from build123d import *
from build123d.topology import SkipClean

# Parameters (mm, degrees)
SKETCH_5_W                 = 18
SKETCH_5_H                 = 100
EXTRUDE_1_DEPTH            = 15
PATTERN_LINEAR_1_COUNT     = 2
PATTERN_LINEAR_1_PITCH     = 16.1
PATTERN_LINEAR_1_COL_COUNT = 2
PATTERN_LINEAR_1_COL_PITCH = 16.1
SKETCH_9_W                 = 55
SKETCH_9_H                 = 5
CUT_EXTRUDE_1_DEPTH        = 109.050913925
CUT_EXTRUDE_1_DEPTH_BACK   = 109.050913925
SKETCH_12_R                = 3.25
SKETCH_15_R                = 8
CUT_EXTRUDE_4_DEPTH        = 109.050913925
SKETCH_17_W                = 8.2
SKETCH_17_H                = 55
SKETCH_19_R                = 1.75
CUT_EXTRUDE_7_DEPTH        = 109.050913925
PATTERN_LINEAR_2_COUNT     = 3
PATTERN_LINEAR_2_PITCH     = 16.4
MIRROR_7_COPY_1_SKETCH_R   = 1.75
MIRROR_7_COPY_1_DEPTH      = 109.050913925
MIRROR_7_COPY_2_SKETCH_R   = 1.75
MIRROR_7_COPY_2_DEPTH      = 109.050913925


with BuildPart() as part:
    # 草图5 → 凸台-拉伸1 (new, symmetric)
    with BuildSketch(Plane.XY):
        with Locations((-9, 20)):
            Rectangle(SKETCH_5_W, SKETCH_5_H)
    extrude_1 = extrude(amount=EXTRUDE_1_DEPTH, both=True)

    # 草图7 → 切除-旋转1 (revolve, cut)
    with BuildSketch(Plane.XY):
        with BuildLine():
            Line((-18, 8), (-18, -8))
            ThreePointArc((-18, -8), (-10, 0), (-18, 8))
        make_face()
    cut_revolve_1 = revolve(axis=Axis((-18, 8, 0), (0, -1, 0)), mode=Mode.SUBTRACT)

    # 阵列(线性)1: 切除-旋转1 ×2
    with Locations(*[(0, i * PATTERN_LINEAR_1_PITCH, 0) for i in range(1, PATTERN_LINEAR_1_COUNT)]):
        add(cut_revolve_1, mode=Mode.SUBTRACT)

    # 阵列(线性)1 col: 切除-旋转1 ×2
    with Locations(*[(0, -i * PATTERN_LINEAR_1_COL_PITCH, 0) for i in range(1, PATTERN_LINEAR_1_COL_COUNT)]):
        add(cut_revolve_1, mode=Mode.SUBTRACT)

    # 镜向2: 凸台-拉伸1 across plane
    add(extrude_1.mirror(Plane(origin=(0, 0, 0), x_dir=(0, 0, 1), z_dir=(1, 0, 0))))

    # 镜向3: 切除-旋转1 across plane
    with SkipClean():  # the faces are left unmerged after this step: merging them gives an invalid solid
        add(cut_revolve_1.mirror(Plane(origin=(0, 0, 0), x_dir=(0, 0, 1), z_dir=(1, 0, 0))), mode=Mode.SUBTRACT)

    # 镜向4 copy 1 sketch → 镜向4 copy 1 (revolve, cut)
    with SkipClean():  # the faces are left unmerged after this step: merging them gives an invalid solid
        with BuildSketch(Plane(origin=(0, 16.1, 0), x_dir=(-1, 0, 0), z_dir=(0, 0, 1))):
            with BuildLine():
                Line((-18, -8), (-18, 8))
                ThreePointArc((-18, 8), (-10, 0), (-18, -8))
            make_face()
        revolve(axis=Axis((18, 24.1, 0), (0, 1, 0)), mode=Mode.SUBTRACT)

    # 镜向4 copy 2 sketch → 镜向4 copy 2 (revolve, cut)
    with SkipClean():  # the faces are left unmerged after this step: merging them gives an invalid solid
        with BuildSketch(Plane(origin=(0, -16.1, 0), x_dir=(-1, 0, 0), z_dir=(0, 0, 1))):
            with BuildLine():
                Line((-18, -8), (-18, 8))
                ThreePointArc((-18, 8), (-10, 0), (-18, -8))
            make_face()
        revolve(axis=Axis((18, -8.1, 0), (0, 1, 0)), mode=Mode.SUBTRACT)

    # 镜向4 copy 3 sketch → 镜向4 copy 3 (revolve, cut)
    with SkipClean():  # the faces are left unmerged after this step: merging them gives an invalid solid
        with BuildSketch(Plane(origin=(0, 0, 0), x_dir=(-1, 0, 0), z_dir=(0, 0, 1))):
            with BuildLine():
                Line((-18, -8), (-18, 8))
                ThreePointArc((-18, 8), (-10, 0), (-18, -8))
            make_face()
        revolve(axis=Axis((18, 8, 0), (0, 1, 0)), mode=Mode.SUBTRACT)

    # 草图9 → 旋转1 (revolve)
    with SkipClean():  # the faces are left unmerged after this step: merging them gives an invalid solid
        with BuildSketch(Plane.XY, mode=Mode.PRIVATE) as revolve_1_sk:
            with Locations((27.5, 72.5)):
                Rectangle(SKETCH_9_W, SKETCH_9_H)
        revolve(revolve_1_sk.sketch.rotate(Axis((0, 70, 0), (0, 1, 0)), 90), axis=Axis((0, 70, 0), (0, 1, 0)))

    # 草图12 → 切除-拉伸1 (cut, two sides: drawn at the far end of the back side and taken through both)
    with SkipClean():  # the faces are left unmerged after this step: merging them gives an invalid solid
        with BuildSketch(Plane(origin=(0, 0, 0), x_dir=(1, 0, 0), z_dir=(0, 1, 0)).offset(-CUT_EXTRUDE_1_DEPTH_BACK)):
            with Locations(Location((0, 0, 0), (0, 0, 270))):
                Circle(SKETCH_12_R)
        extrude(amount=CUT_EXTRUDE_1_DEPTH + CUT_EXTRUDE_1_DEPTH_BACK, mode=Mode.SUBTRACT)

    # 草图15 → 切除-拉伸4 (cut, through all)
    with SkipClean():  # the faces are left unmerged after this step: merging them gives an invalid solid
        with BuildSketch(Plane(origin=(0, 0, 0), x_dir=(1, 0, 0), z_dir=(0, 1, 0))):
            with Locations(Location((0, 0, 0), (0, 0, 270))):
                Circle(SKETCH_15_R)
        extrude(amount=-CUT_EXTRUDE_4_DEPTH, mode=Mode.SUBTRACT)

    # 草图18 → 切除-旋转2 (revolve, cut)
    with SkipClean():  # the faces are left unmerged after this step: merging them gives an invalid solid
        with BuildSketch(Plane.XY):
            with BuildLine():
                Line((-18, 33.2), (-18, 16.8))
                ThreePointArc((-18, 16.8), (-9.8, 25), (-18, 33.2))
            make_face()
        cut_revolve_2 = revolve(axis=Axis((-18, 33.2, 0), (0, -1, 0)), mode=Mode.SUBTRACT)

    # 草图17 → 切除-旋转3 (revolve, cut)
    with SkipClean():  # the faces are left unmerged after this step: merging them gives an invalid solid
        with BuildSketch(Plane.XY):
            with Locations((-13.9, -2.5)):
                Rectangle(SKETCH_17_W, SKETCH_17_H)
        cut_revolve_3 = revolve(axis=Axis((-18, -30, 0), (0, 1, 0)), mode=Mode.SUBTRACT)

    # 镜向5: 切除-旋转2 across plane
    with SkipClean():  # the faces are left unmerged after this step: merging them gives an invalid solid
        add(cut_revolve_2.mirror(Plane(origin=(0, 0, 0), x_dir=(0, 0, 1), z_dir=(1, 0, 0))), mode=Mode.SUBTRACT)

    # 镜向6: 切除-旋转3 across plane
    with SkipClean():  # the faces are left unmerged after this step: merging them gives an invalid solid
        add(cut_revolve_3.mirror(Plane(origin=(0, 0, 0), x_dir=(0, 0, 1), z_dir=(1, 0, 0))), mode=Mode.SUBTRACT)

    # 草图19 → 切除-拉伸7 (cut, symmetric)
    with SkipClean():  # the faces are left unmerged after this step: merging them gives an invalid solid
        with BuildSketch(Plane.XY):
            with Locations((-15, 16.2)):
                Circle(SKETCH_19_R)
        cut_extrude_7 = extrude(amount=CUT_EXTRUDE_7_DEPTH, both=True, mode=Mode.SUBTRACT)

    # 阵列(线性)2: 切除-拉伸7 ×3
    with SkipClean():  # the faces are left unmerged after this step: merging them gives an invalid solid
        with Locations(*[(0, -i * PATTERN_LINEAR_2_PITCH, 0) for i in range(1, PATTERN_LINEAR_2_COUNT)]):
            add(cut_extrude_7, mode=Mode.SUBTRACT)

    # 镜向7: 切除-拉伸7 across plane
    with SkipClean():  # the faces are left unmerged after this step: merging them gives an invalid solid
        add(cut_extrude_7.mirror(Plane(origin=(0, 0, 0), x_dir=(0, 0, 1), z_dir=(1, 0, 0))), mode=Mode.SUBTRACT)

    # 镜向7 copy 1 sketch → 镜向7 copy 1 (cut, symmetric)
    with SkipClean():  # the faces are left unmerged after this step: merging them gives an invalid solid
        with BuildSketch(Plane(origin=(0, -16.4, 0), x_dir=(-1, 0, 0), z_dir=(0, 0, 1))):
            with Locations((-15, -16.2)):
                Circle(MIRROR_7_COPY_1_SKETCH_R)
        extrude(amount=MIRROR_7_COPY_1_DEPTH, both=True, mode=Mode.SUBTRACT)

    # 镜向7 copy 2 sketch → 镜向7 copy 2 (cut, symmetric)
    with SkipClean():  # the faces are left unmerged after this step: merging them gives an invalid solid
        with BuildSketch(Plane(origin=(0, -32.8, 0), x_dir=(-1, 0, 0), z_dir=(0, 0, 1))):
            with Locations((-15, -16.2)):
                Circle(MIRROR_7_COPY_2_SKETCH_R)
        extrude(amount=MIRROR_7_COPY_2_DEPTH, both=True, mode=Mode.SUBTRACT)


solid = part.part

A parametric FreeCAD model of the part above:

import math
import FreeCAD as App
import Part
import Sketcher
Q = App.Units.Quantity


def add_polygon(sketch, points):
    """Adds a closed chain of lines whose ends are joined by coincident constraints."""
    first, n = sketch.GeometryCount, len(points)
    for a, b in zip(points, points[1:] + points[:1]):
        sketch.addGeometry(Part.LineSegment(App.Vector(*a, 0), App.Vector(*b, 0)), False)
    for i in range(n):
        sketch.addConstraint(Sketcher.Constraint("Coincident", first + i, 2, first + (i + 1) % n, 1))

doc = App.newDocument("Part")
params = doc.addObject("Spreadsheet::Sheet", "Params")
for row, (alias, value) in enumerate([
    ("sketch1_width", "18 mm"),
    ("sketch1_height", "100 mm"),
    ("pad1_length", "30 mm"),
    ("sketch2_radius", "8 mm"),
    ("groove_angle", "360 deg"),
    ("linearpattern_pitch", "16.1 mm"),
    ("linearpattern2_pitch", "16.1 mm"),
    ("sketch3_radius", "8 mm"),
    ("groove2_angle", "360 deg"),
    ("sketch4_radius", "8 mm"),
    ("groove3_angle", "360 deg"),
    ("sketch5_radius", "8 mm"),
    ("groove4_angle", "360 deg"),
    ("sketch6_width", "55 mm"),
    ("sketch6_height", "5 mm"),
    ("revolution_angle", "360 deg"),
    ("sketch7_diameter", "6.5 mm"),
    ("sketch8_diameter", "16 mm"),
    ("sketch9_radius", "8.2 mm"),
    ("groove5_angle", "360 deg"),
    ("sketch10_height", "55 mm"),
    ("sketch10_width", "8.2 mm"),
    ("groove6_angle", "360 deg"),
    ("sketch11_diameter", "3.5 mm"),
    ("pocket3_length", "218.101828 mm"),
    ("linearpattern3_pitch", "16.4 mm"),
    ("sketch12_diameter", "3.5 mm"),
    ("pocket4_length", "218.101828 mm"),
    ("sketch13_diameter", "3.5 mm"),
    ("pocket5_length", "218.101828 mm"),
], start=1):
    params.set(f"A{row}", alias)
    params.set(f"B{row}", "=" + value)
    params.setAlias(f"B{row}", alias)

body = doc.addObject("PartDesign::Body", "Body")

sketch1 = body.newObject("Sketcher::SketchObject", "Sketch")
sketch1.AttachmentSupport = (doc.getObject("XY_Plane"), [""])
sketch1.MapMode = "FlatFace"
add_polygon(sketch1, [(-18, 70), (-18, -30), (0, -30), (0, 70)])
sketch1.addConstraint([
    Sketcher.Constraint("Vertical", 0),
    Sketcher.Constraint("Horizontal", 1),
    Sketcher.Constraint("Vertical", 2),
    Sketcher.Constraint("Horizontal", 3),
    Sketcher.Constraint("PointOnObject", 1, 2, -2),
    Sketcher.Constraint("DistanceX", 1, 1, 1, 2, Q("18 mm")),
    Sketcher.Constraint("DistanceY", 0, 2, 0, 1, Q("100 mm")),
    Sketcher.Constraint("DistanceY", 0, 2, -1, 1, Q("30 mm")),
])
sketch1.setExpression("Constraints[9]", "Params.sketch1_width")
sketch1.setExpression("Constraints[10]", "Params.sketch1_height")
pad1 = body.newObject("PartDesign::Pad", "Pad")
pad1.Profile = sketch1
pad1.setExpression("Length", "Params.pad1_length")
pad1.Midplane = True

sketch2 = body.newObject("Sketcher::SketchObject", "Sketch001")
sketch2.AttachmentSupport = (doc.getObject("XY_Plane"), [""])
sketch2.MapMode = "FlatFace"
sketch2.addGeometry([
    Part.LineSegment(App.Vector(-18, 8, 0), App.Vector(-18, -8, 0)),
    Part.ArcOfCircle(Part.Circle(App.Vector(-18, 0, 0), App.Vector(0, 0, 1), 8), math.radians(-90), math.radians(90)),
], False)
sketch2.addGeometry(Part.LineSegment(App.Vector(-18, 8, 0), App.Vector(-18, -8, 0)), True)
sketch2.addConstraint([
    Sketcher.Constraint("Coincident", 0, 1, 1, 2),
    Sketcher.Constraint("Coincident", 1, 1, 0, 2),
    Sketcher.Constraint("Vertical", 0),
    Sketcher.Constraint("Vertical", 2),
    Sketcher.Constraint("Coincident", 2, 1, 0, 1),
    Sketcher.Constraint("PointOnObject", 1, 3, -1),
    Sketcher.Constraint("Vertical", 1, 3, 0, 1),
    Sketcher.Constraint("Equal", 0, 2),
    Sketcher.Constraint("Radius", 1, Q("8 mm")),
    Sketcher.Constraint("DistanceX", 1, 3, -1, 1, Q("18 mm")),
])
sketch2.setExpression("Constraints[8]", "Params.sketch2_radius")
groove = body.newObject("PartDesign::Groove", "Groove")
groove.Profile = sketch2
groove.ReferenceAxis = (sketch2, ["Axis0"])
groove.setExpression("Angle", "Params.groove_angle")
doc.recompute()

linearpattern = body.newObject("PartDesign::LinearPattern", "LinearPattern")
linearpattern.Originals = [groove]
linearpattern.Direction = (doc.getObject("Y_Axis"), [""])
linearpattern.Mode = "offset"
linearpattern.setExpression("Offset", "Params.linearpattern_pitch")
linearpattern.Occurrences = 2
body.Tip = linearpattern
doc.recompute()

linearpattern2 = body.newObject("PartDesign::LinearPattern", "LinearPattern001")
linearpattern2.Originals = [groove]
linearpattern2.Direction = (doc.getObject("Y_Axis"), [""])
linearpattern2.Mode = "offset"
linearpattern2.setExpression("Offset", "Params.linearpattern2_pitch")
linearpattern2.Occurrences = 2
linearpattern2.Reversed = True
body.Tip = linearpattern2
doc.recompute()

mirrored = body.newObject("PartDesign::Mirrored", "Mirrored")
mirrored.Originals = [pad1]
mirrored.MirrorPlane = (doc.getObject("YZ_Plane"), [""])
body.Tip = mirrored
doc.recompute()

mirrored2 = body.newObject("PartDesign::Mirrored", "Mirrored001")
mirrored2.Originals = [groove]
mirrored2.MirrorPlane = (doc.getObject("YZ_Plane"), [""])
body.Tip = mirrored2

sketch3 = body.newObject("Sketcher::SketchObject", "Sketch002")
sketch3.AttachmentSupport = (doc.getObject("XY_Plane"), [""])
sketch3.MapMode = "FlatFace"
sketch3.addGeometry([
    Part.LineSegment(App.Vector(18, 8.1, 0), App.Vector(18, 24.1, 0)),
    Part.ArcOfCircle(Part.Circle(App.Vector(18, 16.1, 0), App.Vector(0, 0, 1), 8), math.radians(90), math.radians(270)),
], False)
sketch3.addGeometry(Part.LineSegment(App.Vector(18, 8.1, 0), App.Vector(18, 24.1, 0)), True)
sketch3.addConstraint([
    Sketcher.Constraint("Coincident", 0, 1, 1, 2),
    Sketcher.Constraint("Coincident", 1, 1, 0, 2),
    Sketcher.Constraint("Vertical", 0),
    Sketcher.Constraint("Vertical", 2),
    Sketcher.Constraint("Coincident", 2, 1, 0, 1),
    Sketcher.Constraint("Vertical", 1, 3, 0, 1),
    Sketcher.Constraint("Equal", 0, 2),
    Sketcher.Constraint("Radius", 1, Q("8 mm")),
    Sketcher.Constraint("DistanceX", -1, 1, 1, 3, Q("18 mm")),
    Sketcher.Constraint("DistanceY", -1, 1, 1, 3, Q("16.1 mm")),
])
sketch3.setExpression("Constraints[7]", "Params.sketch3_radius")
groove2 = body.newObject("PartDesign::Groove", "Groove001")
groove2.Profile = sketch3
groove2.ReferenceAxis = (sketch3, ["Axis0"])
groove2.setExpression("Angle", "Params.groove2_angle")

sketch4 = body.newObject("Sketcher::SketchObject", "Sketch003")
sketch4.AttachmentSupport = (doc.getObject("XY_Plane"), [""])
sketch4.MapMode = "FlatFace"
sketch4.addGeometry([
    Part.LineSegment(App.Vector(18, -24.1, 0), App.Vector(18, -8.1, 0)),
    Part.ArcOfCircle(Part.Circle(App.Vector(18, -16.1, 0), App.Vector(0, 0, 1), 8), math.radians(90), math.radians(270)),
], False)
sketch4.addGeometry(Part.LineSegment(App.Vector(18, -24.1, 0), App.Vector(18, -8.1, 0)), True)
sketch4.addConstraint([
    Sketcher.Constraint("Coincident", 0, 1, 1, 2),
    Sketcher.Constraint("Coincident", 1, 1, 0, 2),
    Sketcher.Constraint("Vertical", 0),
    Sketcher.Constraint("Vertical", 2),
    Sketcher.Constraint("Coincident", 2, 1, 0, 1),
    Sketcher.Constraint("Vertical", 1, 3, 0, 1),
    Sketcher.Constraint("Equal", 0, 2),
    Sketcher.Constraint("Radius", 1, Q("8 mm")),
    Sketcher.Constraint("DistanceX", -1, 1, 1, 3, Q("18 mm")),
    Sketcher.Constraint("DistanceY", 1, 3, -1, 1, Q("16.1 mm")),
])
sketch4.setExpression("Constraints[7]", "Params.sketch4_radius")
groove3 = body.newObject("PartDesign::Groove", "Groove002")
groove3.Profile = sketch4
groove3.ReferenceAxis = (sketch4, ["Axis0"])
groove3.setExpression("Angle", "Params.groove3_angle")

sketch5 = body.newObject("Sketcher::SketchObject", "Sketch004")
sketch5.AttachmentSupport = (doc.getObject("XY_Plane"), [""])
sketch5.MapMode = "FlatFace"
sketch5.addGeometry([
    Part.LineSegment(App.Vector(18, -8, 0), App.Vector(18, 8, 0)),
    Part.ArcOfCircle(Part.Circle(App.Vector(18, 0, 0), App.Vector(0, 0, 1), 8), math.radians(90), math.radians(270)),
], False)
sketch5.addGeometry(Part.LineSegment(App.Vector(18, -8, 0), App.Vector(18, 8, 0)), True)
sketch5.addConstraint([
    Sketcher.Constraint("Coincident", 0, 1, 1, 2),
    Sketcher.Constraint("Coincident", 1, 1, 0, 2),
    Sketcher.Constraint("Vertical", 0),
    Sketcher.Constraint("Vertical", 2),
    Sketcher.Constraint("Coincident", 2, 1, 0, 1),
    Sketcher.Constraint("PointOnObject", 1, 3, -1),
    Sketcher.Constraint("Vertical", 1, 3, 0, 1),
    Sketcher.Constraint("Equal", 0, 2),
    Sketcher.Constraint("Radius", 1, Q("8 mm")),
    Sketcher.Constraint("DistanceX", -1, 1, 1, 3, Q("18 mm")),
])
sketch5.setExpression("Constraints[8]", "Params.sketch5_radius")
groove4 = body.newObject("PartDesign::Groove", "Groove003")
groove4.Profile = sketch5
groove4.ReferenceAxis = (sketch5, ["Axis0"])
groove4.setExpression("Angle", "Params.groove4_angle")

sketch6 = body.newObject("Sketcher::SketchObject", "Sketch005")
sketch6.AttachmentSupport = (doc.getObject("XY_Plane"), [""])
sketch6.MapMode = "FlatFace"
add_polygon(sketch6, [(0, 75), (0, 70), (55, 70), (55, 75)])
sketch6.addConstraint([
    Sketcher.Constraint("Vertical", 0),
    Sketcher.Constraint("Horizontal", 1),
    Sketcher.Constraint("Vertical", 2),
    Sketcher.Constraint("Horizontal", 3),
    Sketcher.Constraint("PointOnObject", 0, 2, -2),
    Sketcher.Constraint("DistanceX", 1, 1, 1, 2, Q("55 mm")),
    Sketcher.Constraint("DistanceY", 0, 2, 0, 1, Q("5 mm")),
    Sketcher.Constraint("DistanceY", -1, 1, 0, 2, Q("70 mm")),
])
sketch6.setExpression("Constraints[9]", "Params.sketch6_width")
sketch6.setExpression("Constraints[10]", "Params.sketch6_height")
revolution = body.newObject("PartDesign::Revolution", "Revolution")
revolution.Profile = sketch6
revolution.ReferenceAxis = (sketch6, ["V_Axis"])
revolution.setExpression("Angle", "Params.revolution_angle")

sketch7 = body.newObject("Sketcher::SketchObject", "Sketch006")
sketch7.AttachmentSupport = (doc.getObject("XZ_Plane"), [""])
sketch7.MapMode = "FlatFace"
sketch7.addGeometry(Part.Circle(App.Vector(0, 0, 0), App.Vector(0, 0, 1), 3.25), False)
sketch7.addConstraint([
    Sketcher.Constraint("Coincident", 0, 3, -1, 1),
    Sketcher.Constraint("Diameter", 0, Q("6.5 mm")),
])
sketch7.setExpression("Constraints[1]", "Params.sketch7_diameter")
pocket1 = body.newObject("PartDesign::Pocket", "Pocket")
pocket1.Profile = sketch7
pocket1.Type = "ThroughAll"
pocket1.Midplane = True

sketch8 = body.newObject("Sketcher::SketchObject", "Sketch007")
sketch8.AttachmentSupport = (doc.getObject("XZ_Plane"), [""])
sketch8.MapMode = "FlatFace"
sketch8.addGeometry(Part.Circle(App.Vector(0, 0, 0), App.Vector(0, 0, 1), 8), False)
sketch8.addConstraint([
    Sketcher.Constraint("Coincident", 0, 3, -1, 1),
    Sketcher.Constraint("Diameter", 0, Q("16 mm")),
])
sketch8.setExpression("Constraints[1]", "Params.sketch8_diameter")
pocket2 = body.newObject("PartDesign::Pocket", "Pocket001")
pocket2.Profile = sketch8
pocket2.Type = "ThroughAll"
pocket2.Reversed = True

sketch9 = body.newObject("Sketcher::SketchObject", "Sketch008")
sketch9.AttachmentSupport = (doc.getObject("XY_Plane"), [""])
sketch9.MapMode = "FlatFace"
sketch9.addGeometry([
    Part.LineSegment(App.Vector(-18, 33.2, 0), App.Vector(-18, 16.8, 0)),
    Part.ArcOfCircle(Part.Circle(App.Vector(-18, 25, 0), App.Vector(0, 0, 1), 8.2), math.radians(-90), math.radians(90)),
], False)
sketch9.addGeometry(Part.LineSegment(App.Vector(-18, 33.2, 0), App.Vector(-18, 16.8, 0)), True)
sketch9.addConstraint([
    Sketcher.Constraint("Coincident", 0, 1, 1, 2),
    Sketcher.Constraint("Coincident", 1, 1, 0, 2),
    Sketcher.Constraint("Vertical", 0),
    Sketcher.Constraint("Vertical", 2),
    Sketcher.Constraint("Coincident", 2, 1, 0, 1),
    Sketcher.Constraint("Vertical", 1, 3, 0, 1),
    Sketcher.Constraint("Equal", 0, 2),
    Sketcher.Constraint("Radius", 1, Q("8.2 mm")),
    Sketcher.Constraint("DistanceX", 1, 3, -1, 1, Q("18 mm")),
    Sketcher.Constraint("DistanceY", -1, 1, 1, 3, Q("25 mm")),
])
sketch9.setExpression("Constraints[7]", "Params.sketch9_radius")
groove5 = body.newObject("PartDesign::Groove", "Groove004")
groove5.Profile = sketch9
groove5.ReferenceAxis = (sketch9, ["Axis0"])
groove5.setExpression("Angle", "Params.groove5_angle")

sketch10 = body.newObject("Sketcher::SketchObject", "Sketch009")
sketch10.AttachmentSupport = (doc.getObject("XY_Plane"), [""])
sketch10.MapMode = "FlatFace"
add_polygon(sketch10, [(-18, 25), (-18, -30), (-9.8, -30), (-9.8, 25)])
sketch10.addGeometry(Part.LineSegment(App.Vector(-18, -30, 0), App.Vector(-18, 25, 0)), True)
sketch10.addConstraint([
    Sketcher.Constraint("Vertical", 0),
    Sketcher.Constraint("Horizontal", 1),
    Sketcher.Constraint("Vertical", 2),
    Sketcher.Constraint("Horizontal", 3),
    Sketcher.Constraint("Vertical", 4),
    Sketcher.Constraint("Coincident", 4, 1, 0, 2),
    Sketcher.Constraint("Horizontal", 2, 2, 4, 2),
    Sketcher.Constraint("DistanceY", 0, 2, 0, 1, Q("55 mm")),
    Sketcher.Constraint("DistanceX", 1, 1, 1, 2, Q("8.2 mm")),
    Sketcher.Constraint("DistanceX", 0, 2, -1, 1, Q("18 mm")),
    Sketcher.Constraint("DistanceY", 0, 2, -1, 1, Q("30 mm")),
])
sketch10.setExpression("Constraints[11]", "Params.sketch10_height")
sketch10.setExpression("Constraints[12]", "Params.sketch10_width")
groove6 = body.newObject("PartDesign::Groove", "Groove005")
groove6.Profile = sketch10
groove6.ReferenceAxis = (sketch10, ["Axis0"])
groove6.setExpression("Angle", "Params.groove6_angle")
doc.recompute()

mirrored3 = body.newObject("PartDesign::Mirrored", "Mirrored002")
mirrored3.Originals = [groove5]
mirrored3.MirrorPlane = (doc.getObject("YZ_Plane"), [""])
body.Tip = mirrored3
doc.recompute()

mirrored4 = body.newObject("PartDesign::Mirrored", "Mirrored003")
mirrored4.Originals = [groove6]
mirrored4.MirrorPlane = (doc.getObject("YZ_Plane"), [""])
body.Tip = mirrored4

sketch11 = body.newObject("Sketcher::SketchObject", "Sketch010")
sketch11.AttachmentSupport = (doc.getObject("XY_Plane"), [""])
sketch11.MapMode = "FlatFace"
sketch11.addGeometry(Part.Circle(App.Vector(-15, 16.2, 0), App.Vector(0, 0, 1), 1.75), False)
sketch11.addConstraint([
    Sketcher.Constraint("Diameter", 0, Q("3.5 mm")),
    Sketcher.Constraint("DistanceX", 0, 3, -1, 1, Q("15 mm")),
    Sketcher.Constraint("DistanceY", -1, 1, 0, 3, Q("16.2 mm")),
])
sketch11.setExpression("Constraints[0]", "Params.sketch11_diameter")
pocket3 = body.newObject("PartDesign::Pocket", "Pocket002")
pocket3.Profile = sketch11
pocket3.setExpression("Length", "Params.pocket3_length")
pocket3.Midplane = True
doc.recompute()

linearpattern3 = body.newObject("PartDesign::LinearPattern", "LinearPattern002")
linearpattern3.Originals = [pocket3]
linearpattern3.Direction = (doc.getObject("Y_Axis"), [""])
linearpattern3.Mode = "offset"
linearpattern3.setExpression("Offset", "Params.linearpattern3_pitch")
linearpattern3.Occurrences = 3
linearpattern3.Reversed = True
body.Tip = linearpattern3
doc.recompute()

mirrored5 = body.newObject("PartDesign::Mirrored", "Mirrored004")
mirrored5.Originals = [pocket3]
mirrored5.MirrorPlane = (doc.getObject("YZ_Plane"), [""])
body.Tip = mirrored5

sketch12 = body.newObject("Sketcher::SketchObject", "Sketch011")
sketch12.AttachmentSupport = (doc.getObject("XY_Plane"), [""])
sketch12.MapMode = "FlatFace"
sketch12.addGeometry(Part.Circle(App.Vector(15, -0.2, 0), App.Vector(0, 0, 1), 1.75), False)
sketch12.addConstraint([
    Sketcher.Constraint("Diameter", 0, Q("3.5 mm")),
    Sketcher.Constraint("DistanceX", -1, 1, 0, 3, Q("15 mm")),
    Sketcher.Constraint("DistanceY", 0, 3, -1, 1, Q("0.2 mm")),
])
sketch12.setExpression("Constraints[0]", "Params.sketch12_diameter")
pocket4 = body.newObject("PartDesign::Pocket", "Pocket003")
pocket4.Profile = sketch12
pocket4.setExpression("Length", "Params.pocket4_length")
pocket4.Midplane = True

sketch13 = body.newObject("Sketcher::SketchObject", "Sketch012")
sketch13.AttachmentSupport = (doc.getObject("XY_Plane"), [""])
sketch13.MapMode = "FlatFace"
sketch13.addGeometry(Part.Circle(App.Vector(15, -16.6, 0), App.Vector(0, 0, 1), 1.75), False)
sketch13.addConstraint([
    Sketcher.Constraint("Diameter", 0, Q("3.5 mm")),
    Sketcher.Constraint("DistanceX", -1, 1, 0, 3, Q("15 mm")),
    Sketcher.Constraint("DistanceY", 0, 3, -1, 1, Q("16.6 mm")),
])
sketch13.setExpression("Constraints[0]", "Params.sketch13_diameter")
pocket5 = body.newObject("PartDesign::Pocket", "Pocket004")
pocket5.Profile = sketch13
pocket5.setExpression("Length", "Params.pocket5_length")
pocket5.Midplane = True

doc.recompute()
